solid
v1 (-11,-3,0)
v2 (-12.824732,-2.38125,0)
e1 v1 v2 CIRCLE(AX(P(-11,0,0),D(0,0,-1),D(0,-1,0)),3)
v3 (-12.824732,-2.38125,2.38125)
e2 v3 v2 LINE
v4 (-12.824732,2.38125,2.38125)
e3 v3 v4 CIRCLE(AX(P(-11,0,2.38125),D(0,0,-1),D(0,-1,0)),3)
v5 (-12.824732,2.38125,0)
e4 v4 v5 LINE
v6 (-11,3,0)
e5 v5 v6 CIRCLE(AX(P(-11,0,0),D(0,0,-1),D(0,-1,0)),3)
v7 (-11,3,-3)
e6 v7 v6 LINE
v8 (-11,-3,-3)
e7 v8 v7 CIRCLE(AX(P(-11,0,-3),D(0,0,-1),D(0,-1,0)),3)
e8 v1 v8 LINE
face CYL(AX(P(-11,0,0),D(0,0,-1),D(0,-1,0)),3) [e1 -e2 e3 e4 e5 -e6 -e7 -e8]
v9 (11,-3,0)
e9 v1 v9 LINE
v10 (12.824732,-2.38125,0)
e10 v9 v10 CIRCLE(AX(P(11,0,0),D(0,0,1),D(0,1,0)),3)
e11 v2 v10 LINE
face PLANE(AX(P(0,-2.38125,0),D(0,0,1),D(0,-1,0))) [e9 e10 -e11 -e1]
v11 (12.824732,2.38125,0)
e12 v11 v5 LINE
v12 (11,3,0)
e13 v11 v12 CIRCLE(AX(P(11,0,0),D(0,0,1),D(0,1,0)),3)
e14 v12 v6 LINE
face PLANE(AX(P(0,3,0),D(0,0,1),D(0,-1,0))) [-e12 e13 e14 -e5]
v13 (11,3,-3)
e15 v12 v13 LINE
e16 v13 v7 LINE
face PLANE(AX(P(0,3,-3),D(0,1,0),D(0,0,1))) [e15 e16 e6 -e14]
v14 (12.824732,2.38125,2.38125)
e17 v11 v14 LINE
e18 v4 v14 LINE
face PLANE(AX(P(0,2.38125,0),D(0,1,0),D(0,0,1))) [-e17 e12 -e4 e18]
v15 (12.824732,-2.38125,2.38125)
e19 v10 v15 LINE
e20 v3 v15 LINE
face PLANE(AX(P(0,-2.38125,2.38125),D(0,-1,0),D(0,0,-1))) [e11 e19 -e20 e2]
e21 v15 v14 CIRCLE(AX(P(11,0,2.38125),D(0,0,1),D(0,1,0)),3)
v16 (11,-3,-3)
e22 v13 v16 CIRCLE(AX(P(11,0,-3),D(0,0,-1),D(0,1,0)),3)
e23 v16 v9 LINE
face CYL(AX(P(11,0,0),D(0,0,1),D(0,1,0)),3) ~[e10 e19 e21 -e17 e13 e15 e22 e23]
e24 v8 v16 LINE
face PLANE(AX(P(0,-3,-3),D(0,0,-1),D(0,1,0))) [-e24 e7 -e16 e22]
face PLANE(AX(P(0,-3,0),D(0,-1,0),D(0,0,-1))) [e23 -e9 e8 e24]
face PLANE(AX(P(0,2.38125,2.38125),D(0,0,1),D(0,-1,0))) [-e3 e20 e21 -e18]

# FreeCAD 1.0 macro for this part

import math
import FreeCAD as App
import Part
import Sketcher
from FreeCAD import Vector

doc = App.newDocument("Part")
params = doc.addObject("Spreadsheet::Sheet", "Params")
for row, (alias, value) in enumerate([
    ("sketch1_width", "6 mm"),
    ("sketch1_height", "3 mm"),
    ("pad1_length", "30 mm"),
    ("sketch2_radius", "3 mm"),
    ("sketch2_radius2", "9.35 mm"),
    ("pocket1_length", "6 mm"),
], start=1):
    params.set(f"A{row}", alias)
    params.set(f"B{row}", "=" + value)
    params.setAlias(f"B{row}", alias)

body = doc.addObject("PartDesign::Body", "Body")

# Sketch on YZ plane
sketch1 = body.newObject("Sketcher::SketchObject", "Sketch")
sketch1.AttachmentSupport = (doc.getObject("YZ_Plane"), [""])
sketch1.MapMode = "FlatFace"
sketch1.addGeometry(Part.LineSegment(Vector(2.4, 0, 0), Vector(2.4, 2.4, 0)), False)
sketch1.addGeometry(Part.LineSegment(Vector(2.4, 2.4, 0), Vector(-2.4, 2.4, 0)), False)
sketch1.addGeometry(Part.LineSegment(Vector(-2.4, 2.4, 0), Vector(-2.4, 0, 0)), False)
sketch1.addGeometry(Part.LineSegment(Vector(-2.4, 0, 0), Vector(-3, 0, 0)), False)
sketch1.addGeometry(Part.LineSegment(Vector(-3, 0, 0), Vector(-3, -3, 0)), False)
sketch1.addGeometry(Part.LineSegment(Vector(-3, -3, 0), Vector(3, -3, 0)), False)
sketch1.addGeometry(Part.LineSegment(Vector(3, -3, 0), Vector(3, 0, 0)), False)
sketch1.addGeometry(Part.LineSegment(Vector(3, 0, 0), Vector(2.4, 0, 0)), False)
sketch1.addConstraint(Sketcher.Constraint("Coincident", 0, 2, 1, 1))
sketch1.addConstraint(Sketcher.Constraint("Coincident", 1, 2, 2, 1))
sketch1.addConstraint(Sketcher.Constraint("Coincident", 2, 2, 3, 1))
sketch1.addConstraint(Sketcher.Constraint("Coincident", 3, 2, 4, 1))
sketch1.addConstraint(Sketcher.Constraint("Coincident", 4, 2, 5, 1))
sketch1.addConstraint(Sketcher.Constraint("Coincident", 5, 2, 6, 1))
sketch1.addConstraint(Sketcher.Constraint("Coincident", 6, 2, 7, 1))
sketch1.addConstraint(Sketcher.Constraint("Coincident", 7, 2, 0, 1))
sketch1.addConstraint(Sketcher.Constraint("Vertical", 0))
sketch1.addConstraint(Sketcher.Constraint("Horizontal", 1))
sketch1.addConstraint(Sketcher.Constraint("Vertical", 2))
sketch1.addConstraint(Sketcher.Constraint("Horizontal", 3))
sketch1.addConstraint(Sketcher.Constraint("Vertical", 4))
sketch1.addConstraint(Sketcher.Constraint("Horizontal", 5))
sketch1.addConstraint(Sketcher.Constraint("Vertical", 6))
sketch1.addConstraint(Sketcher.Constraint("Horizontal", 7))
sketch1.addConstraint(Sketcher.Constraint("Symmetric", 3, 2, 6, 2, -1, 1))
sketch1.addConstraint(Sketcher.Constraint("Symmetric", 2, 2, 7, 2, -2))
sketch1.addConstraint(Sketcher.Constraint("DistanceX", 5, 1, 5, 2, 6.0))
sketch1.addConstraint(Sketcher.Constraint("DistanceY", 4, 2, 4, 1, 3.0))
sketch1.addConstraint(Sketcher.Constraint("DistanceX", 1, 2, 1, 1, 4.7625))
sketch1.addConstraint(Sketcher.Constraint("DistanceY", 0, 1, 0, 2, 2.38125))
sketch1.setExpression("Constraints[18]", "Params.sketch1_width")
sketch1.setExpression("Constraints[19]", "Params.sketch1_height")
pad1 = body.newObject("PartDesign::Pad", "Pad")
pad1.Profile = sketch1
pad1.setExpression("Length", "Params.pad1_length")
pad1.Midplane = True

# Sketch on XY plane
sketch2 = body.newObject("Sketcher::SketchObject", "Sketch001")
sketch2.AttachmentSupport = (doc.getObject("XY_Plane"), [""])
sketch2.MapMode = "FlatFace"
sketch2.addGeometry(Part.ArcOfCircle(Part.Circle(Vector(-11, 0, 0), Vector(0, 0, 1), 3), math.radians(90), math.radians(270)), False)
sketch2.addGeometry(Part.LineSegment(Vector(-11, 3, 0), Vector(-11, 9.3, 0)), False)
sketch2.addGeometry(Part.ArcOfCircle(Part.Circle(Vector(-11, 0, 0), Vector(0, 0, 1), 9.3), math.radians(90), math.radians(270)), False)
sketch2.addGeometry(Part.LineSegment(Vector(-11, -9.3, 0), Vector(-11, -3, 0)), False)
sketch2.addGeometry(Part.ArcOfCircle(Part.Circle(Vector(11, 0, 0), Vector(0, 0, 1), 3), math.radians(-90), math.radians(90)), False)
sketch2.addGeometry(Part.LineSegment(Vector(11, -3, 0), Vector(11, -9.3, 0)), False)
sketch2.addGeometry(Part.ArcOfCircle(Part.Circle(Vector(11, 0, 0), Vector(0, 0, 1), 9.3), math.radians(-90), math.radians(90)), False)
sketch2.addGeometry(Part.LineSegment(Vector(11, 9.3, 0), Vector(11, 3, 0)), False)
sketch2.addConstraint(Sketcher.Constraint("Coincident", 0, 1, 1, 1))
sketch2.addConstraint(Sketcher.Constraint("Coincident", 1, 2, 2, 1))
sketch2.addConstraint(Sketcher.Constraint("Coincident", 2, 2, 3, 1))
sketch2.addConstraint(Sketcher.Constraint("Coincident", 3, 2, 0, 2))
sketch2.addConstraint(Sketcher.Constraint("Coincident", 4, 1, 5, 1))
sketch2.addConstraint(Sketcher.Constraint("Coincident", 5, 2, 6, 1))
sketch2.addConstraint(Sketcher.Constraint("Coincident", 6, 2, 7, 1))
sketch2.addConstraint(Sketcher.Constraint("Coincident", 7, 2, 4, 2))
sketch2.addConstraint(Sketcher.Constraint("Vertical", 1))
sketch2.addConstraint(Sketcher.Constraint("Vertical", 3))
sketch2.addConstraint(Sketcher.Constraint("Vertical", 5))
sketch2.addConstraint(Sketcher.Constraint("Vertical", 7))
sketch2.addConstraint(Sketcher.Constraint("Coincident", 2, 3, 0, 3))
sketch2.addConstraint(Sketcher.Constraint("Coincident", 6, 3, 4, 3))
sketch2.addConstraint(Sketcher.Constraint("Equal", 0, 4))
sketch2.addConstraint(Sketcher.Constraint("Equal", 2, 6))
sketch2.addConstraint(Sketcher.Constraint("Symmetric", 0, 3, 4, 3, -1, 1))
sketch2.addConstraint(Sketcher.Constraint("Symmetric", 3, 2, 4, 1, -2))
sketch2.addConstraint(Sketcher.Constraint("Vertical", 2, 3, 0, 1))
sketch2.addConstraint(Sketcher.Constraint("Vertical", 1, 2, 2, 2))
sketch2.addConstraint(Sketcher.Constraint("Vertical", 5, 2, 6, 2))
sketch2.addConstraint(Sketcher.Constraint("Radius", 0, 3.0))
sketch2.addConstraint(Sketcher.Constraint("Radius", 2, 9.35))
sketch2.addConstraint(Sketcher.Constraint("DistanceX", 0, 3, -1, 1, 11.0))
sketch2.setExpression("Constraints[21]", "Params.sketch2_radius")
sketch2.setExpression("Constraints[22]", "Params.sketch2_radius2")
pocket1 = body.newObject("PartDesign::Pocket", "Pocket")
pocket1.Profile = sketch2
pocket1.setExpression("Length", "Params.pocket1_length")
pocket1.Midplane = True

doc.recompute()
